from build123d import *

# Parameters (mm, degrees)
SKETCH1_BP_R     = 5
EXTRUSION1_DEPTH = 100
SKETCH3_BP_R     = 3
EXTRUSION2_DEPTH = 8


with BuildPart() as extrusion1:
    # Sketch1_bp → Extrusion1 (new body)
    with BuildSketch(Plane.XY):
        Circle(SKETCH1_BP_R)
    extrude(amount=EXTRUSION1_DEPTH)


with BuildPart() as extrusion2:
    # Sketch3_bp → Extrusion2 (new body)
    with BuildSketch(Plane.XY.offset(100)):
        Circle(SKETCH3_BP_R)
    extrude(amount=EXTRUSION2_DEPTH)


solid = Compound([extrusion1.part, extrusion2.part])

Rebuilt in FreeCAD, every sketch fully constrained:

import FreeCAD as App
import Part
import Sketcher
Q = App.Units.Quantity

doc = App.newDocument("Part")
body = doc.addObject("PartDesign::Body", "Body")

sketch1 = body.newObject("Sketcher::SketchObject", "Sketch")
sketch1.AttachmentSupport = (doc.getObject("XY_Plane"), [""])
sketch1.MapMode = "FlatFace"
sketch1.addGeometry(Part.Circle(App.Vector(0, 0, 0), App.Vector(0, 0, 1), 5), False)
sketch1.addConstraint([
    Sketcher.Constraint("Coincident", 0, 3, -1, 1),
    Sketcher.Constraint("Diameter", 0, Q("10 mm")),
])
pad1 = body.newObject("PartDesign::Pad", "Pad")
pad1.Profile = sketch1
pad1.Length = 100
body2 = doc.addObject("PartDesign::Body", "Body001")

sketch2 = body2.newObject("Sketcher::SketchObject", "Sketch001")
sketch2.AttachmentSupport = (doc.getObject("XY_Plane001"), [""])
sketch2.MapMode = "FlatFace"
sketch2.AttachmentOffset = App.Placement(App.Vector(0, 0, 100), App.Rotation())
sketch2.addGeometry(Part.Circle(App.Vector(0, 0, 0), App.Vector(0, 0, 1), 3), False)
sketch2.addConstraint([
    Sketcher.Constraint("Coincident", 0, 3, -1, 1),
    Sketcher.Constraint("Diameter", 0, Q("6 mm")),
])
pad2 = body2.newObject("PartDesign::Pad", "Pad001")
pad2.Profile = sketch2
pad2.Length = 8

doc.recompute()
